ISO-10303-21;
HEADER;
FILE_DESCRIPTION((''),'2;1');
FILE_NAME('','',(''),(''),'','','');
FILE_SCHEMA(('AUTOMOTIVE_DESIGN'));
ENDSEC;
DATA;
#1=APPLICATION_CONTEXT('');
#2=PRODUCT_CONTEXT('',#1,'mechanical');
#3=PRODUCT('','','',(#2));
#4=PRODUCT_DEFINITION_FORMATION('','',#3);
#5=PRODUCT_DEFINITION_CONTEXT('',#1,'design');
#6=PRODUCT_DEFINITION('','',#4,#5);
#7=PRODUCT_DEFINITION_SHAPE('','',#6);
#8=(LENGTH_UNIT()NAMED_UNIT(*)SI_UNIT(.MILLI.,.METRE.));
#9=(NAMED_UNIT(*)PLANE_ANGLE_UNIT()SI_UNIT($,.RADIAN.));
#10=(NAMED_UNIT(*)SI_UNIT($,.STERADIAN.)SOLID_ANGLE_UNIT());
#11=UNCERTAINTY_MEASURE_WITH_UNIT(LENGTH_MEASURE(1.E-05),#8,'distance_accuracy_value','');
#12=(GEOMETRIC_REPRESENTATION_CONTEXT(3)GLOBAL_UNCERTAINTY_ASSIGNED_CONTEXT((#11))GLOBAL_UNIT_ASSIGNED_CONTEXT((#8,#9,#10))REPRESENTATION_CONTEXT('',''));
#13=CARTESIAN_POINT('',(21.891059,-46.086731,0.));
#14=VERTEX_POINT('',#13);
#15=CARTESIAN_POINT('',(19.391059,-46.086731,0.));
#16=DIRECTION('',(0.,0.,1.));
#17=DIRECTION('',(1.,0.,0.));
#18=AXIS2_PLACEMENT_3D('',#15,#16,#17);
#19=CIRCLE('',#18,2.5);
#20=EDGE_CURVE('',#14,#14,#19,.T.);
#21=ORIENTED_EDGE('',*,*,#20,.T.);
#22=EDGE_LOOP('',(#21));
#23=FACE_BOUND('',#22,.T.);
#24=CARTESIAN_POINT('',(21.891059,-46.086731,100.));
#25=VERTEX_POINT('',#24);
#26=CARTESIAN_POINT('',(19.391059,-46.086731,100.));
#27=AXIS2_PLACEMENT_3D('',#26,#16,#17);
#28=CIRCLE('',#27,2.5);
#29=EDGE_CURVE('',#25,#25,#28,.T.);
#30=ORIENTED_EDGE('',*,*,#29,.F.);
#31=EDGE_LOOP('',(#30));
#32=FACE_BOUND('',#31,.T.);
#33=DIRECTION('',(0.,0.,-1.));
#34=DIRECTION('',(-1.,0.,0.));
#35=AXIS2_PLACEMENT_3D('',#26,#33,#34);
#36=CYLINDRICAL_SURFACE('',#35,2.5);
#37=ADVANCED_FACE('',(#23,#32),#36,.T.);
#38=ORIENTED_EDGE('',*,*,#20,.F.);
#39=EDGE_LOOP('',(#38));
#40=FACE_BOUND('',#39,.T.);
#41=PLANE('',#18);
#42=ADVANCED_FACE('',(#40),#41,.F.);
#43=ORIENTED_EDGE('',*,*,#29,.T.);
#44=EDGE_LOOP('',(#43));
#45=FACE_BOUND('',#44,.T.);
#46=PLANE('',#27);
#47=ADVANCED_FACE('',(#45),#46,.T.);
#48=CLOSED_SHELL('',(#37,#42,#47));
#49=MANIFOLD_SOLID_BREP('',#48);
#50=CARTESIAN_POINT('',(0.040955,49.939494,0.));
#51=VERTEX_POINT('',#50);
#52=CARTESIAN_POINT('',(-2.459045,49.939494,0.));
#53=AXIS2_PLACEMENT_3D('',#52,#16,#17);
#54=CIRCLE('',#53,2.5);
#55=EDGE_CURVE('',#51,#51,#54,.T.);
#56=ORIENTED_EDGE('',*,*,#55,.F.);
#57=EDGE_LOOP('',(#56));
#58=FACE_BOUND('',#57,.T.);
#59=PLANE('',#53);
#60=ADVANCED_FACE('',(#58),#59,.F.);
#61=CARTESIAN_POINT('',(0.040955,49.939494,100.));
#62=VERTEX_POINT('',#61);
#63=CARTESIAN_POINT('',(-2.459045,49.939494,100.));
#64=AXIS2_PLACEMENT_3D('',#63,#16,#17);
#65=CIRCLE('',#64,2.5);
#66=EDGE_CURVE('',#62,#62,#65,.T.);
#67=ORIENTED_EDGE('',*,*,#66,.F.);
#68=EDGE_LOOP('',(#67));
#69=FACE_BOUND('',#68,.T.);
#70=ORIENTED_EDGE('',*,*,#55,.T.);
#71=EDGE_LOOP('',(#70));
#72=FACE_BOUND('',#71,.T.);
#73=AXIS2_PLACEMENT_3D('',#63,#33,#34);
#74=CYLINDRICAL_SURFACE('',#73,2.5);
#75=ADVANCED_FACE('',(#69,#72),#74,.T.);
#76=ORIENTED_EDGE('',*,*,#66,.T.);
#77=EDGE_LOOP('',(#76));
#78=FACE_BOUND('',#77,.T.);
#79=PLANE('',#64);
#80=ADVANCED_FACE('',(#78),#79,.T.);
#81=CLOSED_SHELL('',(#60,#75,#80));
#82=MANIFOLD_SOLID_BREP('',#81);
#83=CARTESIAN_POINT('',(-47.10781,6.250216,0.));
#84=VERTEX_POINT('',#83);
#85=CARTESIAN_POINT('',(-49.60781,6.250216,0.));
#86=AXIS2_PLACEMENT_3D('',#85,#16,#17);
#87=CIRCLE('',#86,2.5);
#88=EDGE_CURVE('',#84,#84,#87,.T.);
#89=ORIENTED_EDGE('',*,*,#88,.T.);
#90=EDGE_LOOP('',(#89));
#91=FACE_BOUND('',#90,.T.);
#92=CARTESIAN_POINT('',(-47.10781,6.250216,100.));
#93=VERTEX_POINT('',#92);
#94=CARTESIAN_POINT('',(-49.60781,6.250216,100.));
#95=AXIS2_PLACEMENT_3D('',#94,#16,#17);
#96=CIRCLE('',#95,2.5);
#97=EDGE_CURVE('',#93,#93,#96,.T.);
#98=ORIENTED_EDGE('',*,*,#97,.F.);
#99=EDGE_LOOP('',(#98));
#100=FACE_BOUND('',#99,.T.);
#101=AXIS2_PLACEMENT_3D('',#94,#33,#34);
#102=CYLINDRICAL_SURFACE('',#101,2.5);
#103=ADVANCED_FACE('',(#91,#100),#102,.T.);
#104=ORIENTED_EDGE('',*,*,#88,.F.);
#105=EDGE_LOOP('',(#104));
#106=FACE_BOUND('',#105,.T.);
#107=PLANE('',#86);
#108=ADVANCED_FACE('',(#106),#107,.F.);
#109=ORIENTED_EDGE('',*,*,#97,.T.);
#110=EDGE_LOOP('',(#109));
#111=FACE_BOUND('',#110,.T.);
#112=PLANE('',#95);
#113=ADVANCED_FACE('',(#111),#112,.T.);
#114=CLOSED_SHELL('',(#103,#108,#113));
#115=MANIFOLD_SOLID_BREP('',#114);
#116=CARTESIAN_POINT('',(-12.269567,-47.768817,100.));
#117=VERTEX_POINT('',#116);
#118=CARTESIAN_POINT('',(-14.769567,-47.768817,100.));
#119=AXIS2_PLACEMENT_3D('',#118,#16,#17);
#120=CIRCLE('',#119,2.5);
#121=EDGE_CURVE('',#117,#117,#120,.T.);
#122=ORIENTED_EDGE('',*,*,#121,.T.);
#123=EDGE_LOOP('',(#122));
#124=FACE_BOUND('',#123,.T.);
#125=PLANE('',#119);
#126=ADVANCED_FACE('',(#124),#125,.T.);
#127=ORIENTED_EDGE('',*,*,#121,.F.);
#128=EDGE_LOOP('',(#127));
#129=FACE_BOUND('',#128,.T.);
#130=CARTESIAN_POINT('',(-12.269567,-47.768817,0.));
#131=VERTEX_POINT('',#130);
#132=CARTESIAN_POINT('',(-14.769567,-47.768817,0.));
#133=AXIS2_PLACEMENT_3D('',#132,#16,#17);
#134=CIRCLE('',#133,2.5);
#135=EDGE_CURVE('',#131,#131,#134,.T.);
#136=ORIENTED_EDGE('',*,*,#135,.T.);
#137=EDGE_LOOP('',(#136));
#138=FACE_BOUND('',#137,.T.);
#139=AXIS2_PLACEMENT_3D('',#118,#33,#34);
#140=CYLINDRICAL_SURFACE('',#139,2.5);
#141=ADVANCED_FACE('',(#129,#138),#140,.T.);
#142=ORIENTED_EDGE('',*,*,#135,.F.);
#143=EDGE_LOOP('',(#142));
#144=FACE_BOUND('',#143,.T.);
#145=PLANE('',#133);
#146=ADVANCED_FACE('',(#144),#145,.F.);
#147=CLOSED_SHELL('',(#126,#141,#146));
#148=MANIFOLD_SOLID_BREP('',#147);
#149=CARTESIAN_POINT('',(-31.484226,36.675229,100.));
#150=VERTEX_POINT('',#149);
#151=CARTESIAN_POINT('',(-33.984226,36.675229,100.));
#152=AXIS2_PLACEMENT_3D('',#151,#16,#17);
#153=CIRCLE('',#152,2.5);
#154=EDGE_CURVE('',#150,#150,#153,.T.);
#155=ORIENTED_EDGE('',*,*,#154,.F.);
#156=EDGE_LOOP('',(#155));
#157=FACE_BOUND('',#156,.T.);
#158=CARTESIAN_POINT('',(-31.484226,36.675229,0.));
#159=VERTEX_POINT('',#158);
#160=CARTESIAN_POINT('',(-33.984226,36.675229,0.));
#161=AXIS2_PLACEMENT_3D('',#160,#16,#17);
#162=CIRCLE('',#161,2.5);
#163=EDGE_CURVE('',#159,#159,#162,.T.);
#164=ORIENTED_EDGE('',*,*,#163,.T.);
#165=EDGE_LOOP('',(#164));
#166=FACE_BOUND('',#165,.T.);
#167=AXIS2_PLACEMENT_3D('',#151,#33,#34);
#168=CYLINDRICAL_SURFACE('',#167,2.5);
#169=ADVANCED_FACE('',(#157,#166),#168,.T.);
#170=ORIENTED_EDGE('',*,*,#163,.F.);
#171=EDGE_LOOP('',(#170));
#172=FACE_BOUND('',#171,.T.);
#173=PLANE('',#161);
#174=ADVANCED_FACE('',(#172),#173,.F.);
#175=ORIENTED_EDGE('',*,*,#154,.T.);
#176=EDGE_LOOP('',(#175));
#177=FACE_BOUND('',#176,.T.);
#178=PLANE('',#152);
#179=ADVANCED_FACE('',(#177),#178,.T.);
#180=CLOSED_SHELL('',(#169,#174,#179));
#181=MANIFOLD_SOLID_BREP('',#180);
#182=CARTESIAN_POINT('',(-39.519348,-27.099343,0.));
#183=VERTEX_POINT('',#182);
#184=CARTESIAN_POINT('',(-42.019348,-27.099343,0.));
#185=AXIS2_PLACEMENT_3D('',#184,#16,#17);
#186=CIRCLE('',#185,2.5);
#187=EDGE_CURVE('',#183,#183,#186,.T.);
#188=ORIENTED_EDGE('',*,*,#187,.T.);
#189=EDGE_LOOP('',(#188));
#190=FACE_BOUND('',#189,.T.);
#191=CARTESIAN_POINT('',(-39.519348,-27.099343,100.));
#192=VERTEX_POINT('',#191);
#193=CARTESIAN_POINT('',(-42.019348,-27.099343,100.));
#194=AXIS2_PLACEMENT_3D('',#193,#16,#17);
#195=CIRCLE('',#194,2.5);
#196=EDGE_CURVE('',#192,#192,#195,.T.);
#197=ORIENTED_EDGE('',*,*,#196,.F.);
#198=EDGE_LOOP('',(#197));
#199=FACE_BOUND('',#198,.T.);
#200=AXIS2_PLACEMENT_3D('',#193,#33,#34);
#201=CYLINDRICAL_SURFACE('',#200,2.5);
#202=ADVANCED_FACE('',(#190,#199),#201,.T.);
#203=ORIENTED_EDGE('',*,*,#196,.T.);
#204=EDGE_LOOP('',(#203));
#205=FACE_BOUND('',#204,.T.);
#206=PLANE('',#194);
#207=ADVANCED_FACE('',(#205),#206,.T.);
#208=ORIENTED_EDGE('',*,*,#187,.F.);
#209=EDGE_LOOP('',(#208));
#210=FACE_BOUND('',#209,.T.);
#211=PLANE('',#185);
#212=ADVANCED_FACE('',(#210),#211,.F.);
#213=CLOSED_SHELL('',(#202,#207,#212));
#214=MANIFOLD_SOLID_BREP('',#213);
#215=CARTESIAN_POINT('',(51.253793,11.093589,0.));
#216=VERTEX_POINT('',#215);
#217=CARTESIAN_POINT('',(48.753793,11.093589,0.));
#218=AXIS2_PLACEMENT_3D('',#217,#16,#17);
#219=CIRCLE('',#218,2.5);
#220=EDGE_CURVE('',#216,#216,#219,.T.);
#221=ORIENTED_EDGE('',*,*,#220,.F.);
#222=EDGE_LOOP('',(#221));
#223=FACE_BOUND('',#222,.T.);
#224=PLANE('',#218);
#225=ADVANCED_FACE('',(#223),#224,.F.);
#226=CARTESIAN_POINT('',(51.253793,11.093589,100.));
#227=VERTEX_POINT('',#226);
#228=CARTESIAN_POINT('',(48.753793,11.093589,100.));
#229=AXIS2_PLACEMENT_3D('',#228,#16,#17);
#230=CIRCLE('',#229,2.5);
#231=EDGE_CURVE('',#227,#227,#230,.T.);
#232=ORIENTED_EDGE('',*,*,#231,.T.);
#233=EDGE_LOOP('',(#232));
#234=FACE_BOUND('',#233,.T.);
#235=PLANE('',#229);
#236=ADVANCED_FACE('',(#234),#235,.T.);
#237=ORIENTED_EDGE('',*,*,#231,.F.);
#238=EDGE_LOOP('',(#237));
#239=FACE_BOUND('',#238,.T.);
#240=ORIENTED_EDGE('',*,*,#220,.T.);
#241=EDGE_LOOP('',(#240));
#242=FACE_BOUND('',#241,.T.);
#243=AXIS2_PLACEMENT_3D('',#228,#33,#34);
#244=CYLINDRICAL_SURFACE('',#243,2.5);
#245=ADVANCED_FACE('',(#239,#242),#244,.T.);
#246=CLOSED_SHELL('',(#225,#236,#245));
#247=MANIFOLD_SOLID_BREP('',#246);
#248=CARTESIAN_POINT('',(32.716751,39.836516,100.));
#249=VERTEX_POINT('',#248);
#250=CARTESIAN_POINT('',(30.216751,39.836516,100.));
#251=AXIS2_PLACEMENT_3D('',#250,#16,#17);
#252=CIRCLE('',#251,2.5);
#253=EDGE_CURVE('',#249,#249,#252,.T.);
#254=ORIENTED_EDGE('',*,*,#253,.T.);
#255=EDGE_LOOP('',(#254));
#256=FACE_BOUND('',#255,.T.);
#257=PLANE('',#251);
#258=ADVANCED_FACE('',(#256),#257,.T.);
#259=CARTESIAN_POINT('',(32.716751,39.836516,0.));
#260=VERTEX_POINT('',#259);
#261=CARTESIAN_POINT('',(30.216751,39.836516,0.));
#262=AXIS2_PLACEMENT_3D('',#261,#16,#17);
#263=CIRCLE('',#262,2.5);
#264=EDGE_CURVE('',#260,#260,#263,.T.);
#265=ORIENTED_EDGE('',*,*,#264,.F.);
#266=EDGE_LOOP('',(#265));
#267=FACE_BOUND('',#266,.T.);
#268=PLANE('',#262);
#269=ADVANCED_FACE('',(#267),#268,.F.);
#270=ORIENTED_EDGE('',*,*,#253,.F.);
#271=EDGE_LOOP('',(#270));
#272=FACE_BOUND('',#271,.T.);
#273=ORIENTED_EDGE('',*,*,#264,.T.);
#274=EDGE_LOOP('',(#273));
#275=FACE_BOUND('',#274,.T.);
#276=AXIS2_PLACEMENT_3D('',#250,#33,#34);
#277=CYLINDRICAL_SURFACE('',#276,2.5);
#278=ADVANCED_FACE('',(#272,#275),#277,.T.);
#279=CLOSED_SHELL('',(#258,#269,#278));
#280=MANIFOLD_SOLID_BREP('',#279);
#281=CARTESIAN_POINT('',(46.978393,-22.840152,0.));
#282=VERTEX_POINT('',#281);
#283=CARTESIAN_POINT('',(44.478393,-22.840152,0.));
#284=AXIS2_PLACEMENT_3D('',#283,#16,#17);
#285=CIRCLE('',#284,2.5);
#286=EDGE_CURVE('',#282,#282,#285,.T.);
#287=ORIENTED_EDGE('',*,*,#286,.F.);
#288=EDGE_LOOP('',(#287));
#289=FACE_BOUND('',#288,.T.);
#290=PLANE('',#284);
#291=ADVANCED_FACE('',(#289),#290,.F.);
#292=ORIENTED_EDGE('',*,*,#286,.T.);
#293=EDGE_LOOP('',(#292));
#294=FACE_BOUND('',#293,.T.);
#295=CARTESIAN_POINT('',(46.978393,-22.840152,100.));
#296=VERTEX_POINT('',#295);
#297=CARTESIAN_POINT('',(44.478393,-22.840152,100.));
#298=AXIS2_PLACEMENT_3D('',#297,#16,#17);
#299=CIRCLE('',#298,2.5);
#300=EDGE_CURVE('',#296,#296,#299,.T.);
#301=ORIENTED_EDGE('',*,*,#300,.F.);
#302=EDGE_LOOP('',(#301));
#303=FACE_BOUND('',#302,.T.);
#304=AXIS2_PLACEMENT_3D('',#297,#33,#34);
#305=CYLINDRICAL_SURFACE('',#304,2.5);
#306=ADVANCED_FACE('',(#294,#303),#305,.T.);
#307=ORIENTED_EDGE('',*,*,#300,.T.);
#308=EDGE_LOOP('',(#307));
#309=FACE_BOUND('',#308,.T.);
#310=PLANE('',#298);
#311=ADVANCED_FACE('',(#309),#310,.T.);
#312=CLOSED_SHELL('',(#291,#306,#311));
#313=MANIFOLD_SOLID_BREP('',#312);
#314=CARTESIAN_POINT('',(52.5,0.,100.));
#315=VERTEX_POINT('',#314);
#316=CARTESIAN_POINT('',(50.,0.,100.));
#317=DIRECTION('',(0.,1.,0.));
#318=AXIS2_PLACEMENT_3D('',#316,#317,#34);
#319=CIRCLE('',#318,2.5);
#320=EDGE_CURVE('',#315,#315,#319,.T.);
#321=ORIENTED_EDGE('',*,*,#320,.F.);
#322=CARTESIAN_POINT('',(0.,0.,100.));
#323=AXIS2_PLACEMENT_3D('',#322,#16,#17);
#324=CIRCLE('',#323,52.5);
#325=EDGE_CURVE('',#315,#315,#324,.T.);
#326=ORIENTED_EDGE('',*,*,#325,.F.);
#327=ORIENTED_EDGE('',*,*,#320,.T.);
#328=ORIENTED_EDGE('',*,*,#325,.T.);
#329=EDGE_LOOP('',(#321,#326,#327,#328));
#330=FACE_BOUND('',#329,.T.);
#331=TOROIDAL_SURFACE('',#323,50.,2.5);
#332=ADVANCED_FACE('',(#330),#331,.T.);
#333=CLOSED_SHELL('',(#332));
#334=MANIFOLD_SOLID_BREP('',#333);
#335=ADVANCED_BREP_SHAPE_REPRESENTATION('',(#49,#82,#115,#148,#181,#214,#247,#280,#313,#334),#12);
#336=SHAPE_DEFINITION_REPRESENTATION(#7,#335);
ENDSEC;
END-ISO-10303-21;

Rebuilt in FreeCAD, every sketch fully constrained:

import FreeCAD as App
import Part
import Sketcher

V = App.Vector

doc = App.newDocument("Part")
body = doc.addObject("PartDesign::Body", "Body")

sketch1 = body.newObject("Sketcher::SketchObject", "Sketch")
sketch1.AttachmentSupport = (doc.getObject("XY_Plane"), [""])
sketch1.MapMode = "FlatFace"
sketch1.addGeometry(Part.Circle(V(-42, -27.1, 0), V(0, 0, 1), 2.5), False)
sketch1.addConstraint(Sketcher.Constraint("Diameter", 0, 5.0))
sketch1.addConstraint(Sketcher.Constraint("DistanceX", 0, 3, -1, 1, 42.019348))
sketch1.addConstraint(Sketcher.Constraint("DistanceY", 0, 3, -1, 1, 27.099343))
pad1 = body.newObject("PartDesign::Pad", "Pad")
pad1.Profile = sketch1
pad1.Length = 100
body2 = doc.addObject("PartDesign::Body", "Body001")

sketch2 = body2.newObject("Sketcher::SketchObject", "Sketch001")
sketch2.AttachmentSupport = (doc.getObject("XY_Plane001"), [""])
sketch2.MapMode = "FlatFace"
sketch2.addGeometry(Part.Circle(V(-14.8, -47.8, 0), V(0, 0, 1), 2.5), False)
sketch2.addConstraint(Sketcher.Constraint("Diameter", 0, 5.0))
sketch2.addConstraint(Sketcher.Constraint("DistanceX", 0, 3, -1, 1, 14.769567))
sketch2.addConstraint(Sketcher.Constraint("DistanceY", 0, 3, -1, 1, 47.768817))
pad2 = body2.newObject("PartDesign::Pad", "Pad001")
pad2.Profile = sketch2
pad2.Length = 100
body3 = doc.addObject("PartDesign::Body", "Body002")

sketch3 = body3.newObject("Sketcher::SketchObject", "Sketch002")
sketch3.AttachmentSupport = (doc.getObject("XY_Plane002"), [""])
sketch3.MapMode = "FlatFace"
sketch3.addGeometry(Part.Circle(V(19.4, -46.1, 0), V(0, 0, 1), 2.5), False)
sketch3.addConstraint(Sketcher.Constraint("Diameter", 0, 5.0))
sketch3.addConstraint(Sketcher.Constraint("DistanceX", -1, 1, 0, 3, 19.391059))
sketch3.addConstraint(Sketcher.Constraint("DistanceY", 0, 3, -1, 1, 46.086731))
pad3 = body3.newObject("PartDesign::Pad", "Pad002")
pad3.Profile = sketch3
pad3.Length = 100
body4 = doc.addObject("PartDesign::Body", "Body003")

sketch4 = body4.newObject("Sketcher::SketchObject", "Sketch003")
sketch4.AttachmentSupport = (doc.getObject("XY_Plane003"), [""])
sketch4.MapMode = "FlatFace"
sketch4.addGeometry(Part.Circle(V(44.5, -22.8, 0), V(0, 0, 1), 2.5), False)
sketch4.addConstraint(Sketcher.Constraint("Diameter", 0, 5.0))
sketch4.addConstraint(Sketcher.Constraint("DistanceY", 0, 3, -1, 1, 22.840152))
sketch4.addConstraint(Sketcher.Constraint("DistanceX", -1, 1, 0, 3, 44.478393))
pad4 = body4.newObject("PartDesign::Pad", "Pad003")
pad4.Profile = sketch4
pad4.Length = 100
body5 = doc.addObject("PartDesign::Body", "Body004")

sketch5 = body5.newObject("Sketcher::SketchObject", "Sketch004")
sketch5.AttachmentSupport = (doc.getObject("XY_Plane004"), [""])
sketch5.MapMode = "FlatFace"
sketch5.addGeometry(Part.Circle(V(48.8, 11.1, 0), V(0, 0, 1), 2.5), False)
sketch5.addConstraint(Sketcher.Constraint("Diameter", 0, 5.0))
sketch5.addConstraint(Sketcher.Constraint("DistanceY", -1, 1, 0, 3, 11.093589))
sketch5.addConstraint(Sketcher.Constraint("DistanceX", -1, 1, 0, 3, 48.753793))
pad5 = body5.newObject("PartDesign::Pad", "Pad004")
pad5.Profile = sketch5
pad5.Length = 100
body6 = doc.addObject("PartDesign::Body", "Body005")

sketch6 = body6.newObject("Sketcher::SketchObject", "Sketch005")
sketch6.AttachmentSupport = (doc.getObject("XY_Plane005"), [""])
sketch6.MapMode = "FlatFace"
sketch6.addGeometry(Part.Circle(V(30.2, 39.8, 0), V(0, 0, 1), 2.5), False)
sketch6.addConstraint(Sketcher.Constraint("Diameter", 0, 5.0))
sketch6.addConstraint(Sketcher.Constraint("DistanceX", -1, 1, 0, 3, 30.216751))
sketch6.addConstraint(Sketcher.Constraint("DistanceY", -1, 1, 0, 3, 39.836516))
pad6 = body6.newObject("PartDesign::Pad", "Pad005")
pad6.Profile = sketch6
pad6.Length = 100
body7 = doc.addObject("PartDesign::Body", "Body006")

sketch7 = body7.newObject("Sketcher::SketchObject", "Sketch006")
sketch7.AttachmentSupport = (doc.getObject("XY_Plane006"), [""])
sketch7.MapMode = "FlatFace"
sketch7.addGeometry(Part.Circle(V(-2.5, 49.9, 0), V(0, 0, 1), 2.5), False)
sketch7.addConstraint(Sketcher.Constraint("Diameter", 0, 5.0))
sketch7.addConstraint(Sketcher.Constraint("DistanceX", 0, 3, -1, 1, 2.459045))
sketch7.addConstraint(Sketcher.Constraint("DistanceY", -1, 1, 0, 3, 49.939494))
pad7 = body7.newObject("PartDesign::Pad", "Pad006")
pad7.Profile = sketch7
pad7.Length = 100
body8 = doc.addObject("PartDesign::Body", "Body007")

sketch8 = body8.newObject("Sketcher::SketchObject", "Sketch007")
sketch8.AttachmentSupport = (doc.getObject("XY_Plane007"), [""])
sketch8.MapMode = "FlatFace"
sketch8.addGeometry(Part.Circle(V(-34, 36.7, 0), V(0, 0, 1), 2.5), False)
sketch8.addConstraint(Sketcher.Constraint("Diameter", 0, 5.0))
sketch8.addConstraint(Sketcher.Constraint("DistanceY", -1, 1, 0, 3, 36.675229))
sketch8.addConstraint(Sketcher.Constraint("DistanceX", 0, 3, -1, 1, 33.984226))
pad8 = body8.newObject("PartDesign::Pad", "Pad007")
pad8.Profile = sketch8
pad8.Length = 100
body9 = doc.addObject("PartDesign::Body", "Body008")

sketch9 = body9.newObject("Sketcher::SketchObject", "Sketch008")
sketch9.AttachmentSupport = (doc.getObject("XY_Plane008"), [""])
sketch9.MapMode = "FlatFace"
sketch9.addGeometry(Part.Circle(V(-49.6, 6.3, 0), V(0, 0, 1), 2.5), False)
sketch9.addConstraint(Sketcher.Constraint("Diameter", 0, 5.0))
sketch9.addConstraint(Sketcher.Constraint("DistanceX", 0, 3, -1, 1, 49.60781))
sketch9.addConstraint(Sketcher.Constraint("DistanceY", -1, 1, 0, 3, 6.250216))
pad9 = body9.newObject("PartDesign::Pad", "Pad008")
pad9.Profile = sketch9
pad9.Length = 100
body10 = doc.addObject("PartDesign::Body", "Body009")

sketch10 = body10.newObject("Sketcher::SketchObject", "Sketch009")
sketch10.AttachmentSupport = (doc.getObject("XZ_Plane009"), [""])
sketch10.MapMode = "FlatFace"
sketch10.addGeometry(Part.Circle(V(50, 100, 0), V(0, 0, 1), 2.5), False)
sketch10.addConstraint(Sketcher.Constraint("Diameter", 0, 5.0))
sketch10.addConstraint(Sketcher.Constraint("DistanceX", -1, 1, 0, 3, 50.0))
sketch10.addConstraint(Sketcher.Constraint("DistanceY", -1, 1, 0, 3, 100.0))

sketch11 = body10.newObject("Sketcher::SketchObject", "Sketch010")
sketch11.AttachmentSupport = (doc.getObject("XY_Plane009"), [""])
sketch11.MapMode = "FlatFace"
sketch11.AttachmentOffset = App.Placement(V(0, 0, 100), App.Rotation())
sketch11.addGeometry(Part.Circle(V(0, 0, 0), V(0, 0, 1), 50), False)
sketch11.addConstraint(Sketcher.Constraint("Coincident", 0, 3, -1, 1))
sketch11.addConstraint(Sketcher.Constraint("Diameter", 0, 100.0))
doc.recompute()

additivepipe = body10.newObject("PartDesign::AdditivePipe", "AdditivePipe")
additivepipe.Profile = sketch10
additivepipe.Spine = (sketch11, ["Edge1"])

doc.recompute()
